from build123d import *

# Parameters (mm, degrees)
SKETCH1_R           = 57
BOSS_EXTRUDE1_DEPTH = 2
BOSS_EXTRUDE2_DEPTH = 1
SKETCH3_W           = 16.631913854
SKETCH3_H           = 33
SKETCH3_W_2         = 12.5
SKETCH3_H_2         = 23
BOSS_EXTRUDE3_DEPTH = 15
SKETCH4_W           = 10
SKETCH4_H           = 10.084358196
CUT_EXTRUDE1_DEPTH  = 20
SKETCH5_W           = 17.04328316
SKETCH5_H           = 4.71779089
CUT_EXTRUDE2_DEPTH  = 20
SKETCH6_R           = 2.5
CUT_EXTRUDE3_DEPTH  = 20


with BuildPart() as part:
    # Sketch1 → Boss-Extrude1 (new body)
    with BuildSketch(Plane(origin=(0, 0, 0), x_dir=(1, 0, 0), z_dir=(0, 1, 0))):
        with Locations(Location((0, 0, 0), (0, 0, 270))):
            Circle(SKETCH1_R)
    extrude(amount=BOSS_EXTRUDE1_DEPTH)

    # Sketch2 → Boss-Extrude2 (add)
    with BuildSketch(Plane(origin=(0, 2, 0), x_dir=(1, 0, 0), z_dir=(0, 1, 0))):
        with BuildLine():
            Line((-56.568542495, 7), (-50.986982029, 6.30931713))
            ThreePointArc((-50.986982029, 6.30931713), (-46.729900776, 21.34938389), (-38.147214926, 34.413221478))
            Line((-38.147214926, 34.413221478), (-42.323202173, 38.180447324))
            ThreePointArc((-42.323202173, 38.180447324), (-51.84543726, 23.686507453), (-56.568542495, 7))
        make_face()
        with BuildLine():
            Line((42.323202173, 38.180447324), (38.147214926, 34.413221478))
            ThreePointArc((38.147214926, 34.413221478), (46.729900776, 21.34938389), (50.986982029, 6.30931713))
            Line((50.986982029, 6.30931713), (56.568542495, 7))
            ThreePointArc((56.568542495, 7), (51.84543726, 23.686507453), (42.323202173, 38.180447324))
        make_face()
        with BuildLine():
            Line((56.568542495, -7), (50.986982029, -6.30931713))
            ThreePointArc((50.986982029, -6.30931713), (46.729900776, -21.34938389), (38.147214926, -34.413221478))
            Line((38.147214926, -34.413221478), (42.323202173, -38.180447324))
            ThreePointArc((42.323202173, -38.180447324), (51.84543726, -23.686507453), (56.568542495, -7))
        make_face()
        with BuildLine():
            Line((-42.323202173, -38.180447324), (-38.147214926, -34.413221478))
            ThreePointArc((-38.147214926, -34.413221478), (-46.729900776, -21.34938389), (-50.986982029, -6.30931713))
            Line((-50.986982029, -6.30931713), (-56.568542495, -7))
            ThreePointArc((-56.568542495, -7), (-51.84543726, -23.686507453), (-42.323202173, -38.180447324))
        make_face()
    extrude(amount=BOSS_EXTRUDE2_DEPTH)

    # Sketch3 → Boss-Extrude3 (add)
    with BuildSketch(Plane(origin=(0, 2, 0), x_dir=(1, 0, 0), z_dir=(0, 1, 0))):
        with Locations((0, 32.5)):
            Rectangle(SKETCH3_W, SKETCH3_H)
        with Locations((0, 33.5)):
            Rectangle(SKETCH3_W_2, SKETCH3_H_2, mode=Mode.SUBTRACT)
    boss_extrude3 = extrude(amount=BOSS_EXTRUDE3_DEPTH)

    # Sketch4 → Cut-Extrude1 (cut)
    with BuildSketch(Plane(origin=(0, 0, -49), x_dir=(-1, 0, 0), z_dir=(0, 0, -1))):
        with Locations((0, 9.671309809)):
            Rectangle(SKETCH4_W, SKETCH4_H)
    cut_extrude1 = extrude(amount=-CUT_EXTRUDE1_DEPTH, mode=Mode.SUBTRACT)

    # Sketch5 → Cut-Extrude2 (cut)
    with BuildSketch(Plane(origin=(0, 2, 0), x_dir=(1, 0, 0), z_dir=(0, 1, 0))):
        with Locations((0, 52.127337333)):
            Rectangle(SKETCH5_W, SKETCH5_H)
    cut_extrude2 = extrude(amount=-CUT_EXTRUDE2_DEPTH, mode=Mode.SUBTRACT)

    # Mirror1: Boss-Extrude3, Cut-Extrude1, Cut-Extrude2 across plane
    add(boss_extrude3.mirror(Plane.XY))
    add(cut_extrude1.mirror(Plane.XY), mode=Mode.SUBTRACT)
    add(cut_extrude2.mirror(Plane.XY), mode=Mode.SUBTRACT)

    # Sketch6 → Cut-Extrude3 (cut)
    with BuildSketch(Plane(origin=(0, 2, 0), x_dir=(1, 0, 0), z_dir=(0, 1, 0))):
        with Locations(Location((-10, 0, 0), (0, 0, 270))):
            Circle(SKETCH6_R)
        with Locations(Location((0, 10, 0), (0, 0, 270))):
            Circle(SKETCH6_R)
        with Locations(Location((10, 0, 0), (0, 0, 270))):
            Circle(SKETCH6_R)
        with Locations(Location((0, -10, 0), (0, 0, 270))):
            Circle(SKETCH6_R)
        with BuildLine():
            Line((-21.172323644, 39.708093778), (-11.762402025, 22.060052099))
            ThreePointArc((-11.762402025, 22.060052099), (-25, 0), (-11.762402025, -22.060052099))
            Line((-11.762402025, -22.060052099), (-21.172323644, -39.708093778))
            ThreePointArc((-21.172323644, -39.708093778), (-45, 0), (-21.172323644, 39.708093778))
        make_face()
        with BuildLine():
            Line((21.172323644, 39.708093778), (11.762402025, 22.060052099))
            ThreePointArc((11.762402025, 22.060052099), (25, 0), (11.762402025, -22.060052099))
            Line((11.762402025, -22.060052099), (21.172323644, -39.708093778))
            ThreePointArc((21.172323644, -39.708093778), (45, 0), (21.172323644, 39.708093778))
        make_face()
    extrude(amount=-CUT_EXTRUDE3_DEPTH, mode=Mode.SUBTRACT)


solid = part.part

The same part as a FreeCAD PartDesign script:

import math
import FreeCAD as App
import Part
import Sketcher
from FreeCAD import Vector

doc = App.newDocument("Part")
body = doc.addObject("PartDesign::Body", "Body")

sketch1 = body.newObject("Sketcher::SketchObject", "Sketch")
sketch1.AttachmentSupport = (doc.getObject("XZ_Plane"), [""])
sketch1.MapMode = "FlatFace"
sketch1.addGeometry(Part.Circle(Vector(0, 0, 0), Vector(0, 0, 1), 57), False)
sketch1.addConstraint([
    Sketcher.Constraint("Coincident", 0, 3, -1, 1),
    Sketcher.Constraint("Diameter", 0, 114.0),
])
pad1 = body.newObject("PartDesign::Pad", "Pad")
pad1.Profile = sketch1
pad1.Length = 2
pad1.Reversed = True

sketch2 = body.newObject("Sketcher::SketchObject", "Sketch001")
sketch2.AttachmentSupport = (doc.getObject("XZ_Plane"), [""])
sketch2.MapMode = "FlatFace"
sketch2.AttachmentOffset = App.Placement(Vector(0, 0, -2), App.Rotation())
sketch2.addGeometry([
    Part.LineSegment(Vector(-57, -7, 0), Vector(-51, -6, 0)),
    Part.ArcOfCircle(Part.Circle(Vector(0, 0, 0), Vector(0, 0, 1), 51), math.radians(-173), math.radians(-138)),
    Part.LineSegment(Vector(-38, -34, 0), Vector(-42, -38, 0)),
    Part.ArcOfCircle(Part.Circle(Vector(0, 0, 0), Vector(0, 0, 1), 57), math.radians(-173), math.radians(-138)),
    Part.LineSegment(Vector(42, -38, 0), Vector(38, -34, 0)),
    Part.ArcOfCircle(Part.Circle(Vector(0, 0, 0), Vector(0, 0, 1), 51), math.radians(-42), math.radians(-7)),
    Part.LineSegment(Vector(51, -6, 0), Vector(57, -7, 0)),
    Part.ArcOfCircle(Part.Circle(Vector(0, 0, 0), Vector(0, 0, 1), 57), math.radians(-42), math.radians(-7)),
    Part.LineSegment(Vector(57, 7, 0), Vector(51, 6, 0)),
    Part.ArcOfCircle(Part.Circle(Vector(0, 0, 0), Vector(0, 0, 1), 51), math.radians(7), math.radians(42)),
    Part.LineSegment(Vector(38, 34, 0), Vector(42, 38, 0)),
    Part.ArcOfCircle(Part.Circle(Vector(0, 0, 0), Vector(0, 0, 1), 57), math.radians(7), math.radians(42)),
    Part.LineSegment(Vector(-42, 38, 0), Vector(-38, 34, 0)),
    Part.ArcOfCircle(Part.Circle(Vector(0, 0, 0), Vector(0, 0, 1), 51), math.radians(138), math.radians(173)),
    Part.LineSegment(Vector(-51, 6, 0), Vector(-57, 7, 0)),
    Part.ArcOfCircle(Part.Circle(Vector(0, 0, 0), Vector(0, 0, 1), 57), math.radians(138), math.radians(173)),
], False)
sketch2.addConstraint([
    Sketcher.Constraint("Coincident", 0, 2, 1, 1),
    Sketcher.Constraint("Coincident", 1, 2, 2, 1),
    Sketcher.Constraint("Coincident", 2, 2, 3, 2),
    Sketcher.Constraint("Coincident", 3, 1, 0, 1),
    Sketcher.Constraint("Coincident", 4, 2, 5, 1),
    Sketcher.Constraint("Coincident", 5, 2, 6, 1),
    Sketcher.Constraint("Coincident", 6, 2, 7, 2),
    Sketcher.Constraint("Coincident", 7, 1, 4, 1),
    Sketcher.Constraint("Coincident", 8, 2, 9, 1),
    Sketcher.Constraint("Coincident", 9, 2, 10, 1),
    Sketcher.Constraint("Coincident", 10, 2, 11, 2),
    Sketcher.Constraint("Coincident", 11, 1, 8, 1),
    Sketcher.Constraint("Coincident", 12, 2, 13, 1),
    Sketcher.Constraint("Coincident", 13, 2, 14, 1),
    Sketcher.Constraint("Coincident", 14, 2, 15, 2),
    Sketcher.Constraint("Coincident", 15, 1, 12, 1),
    Sketcher.Constraint("Coincident", 1, 3, -1, 1),
    Sketcher.Constraint("Coincident", 3, 3, -1, 1),
    Sketcher.Constraint("Coincident", 5, 3, -1, 1),
    Sketcher.Constraint("Coincident", 7, 3, -1, 1),
    Sketcher.Constraint("Coincident", 9, 3, -1, 1),
    Sketcher.Constraint("Coincident", 11, 3, -1, 1),
    Sketcher.Constraint("Coincident", 13, 3, -1, 1),
    Sketcher.Constraint("Coincident", 15, 3, -1, 1),
    Sketcher.Constraint("Equal", 1, 5),
    Sketcher.Constraint("Equal", 3, 7),
    Sketcher.Constraint("Equal", 5, 9),
    Sketcher.Constraint("Equal", 7, 11),
    Sketcher.Constraint("Equal", 9, 13),
    Sketcher.Constraint("Equal", 11, 15),
    Sketcher.Constraint("Parallel", 0, 8),
    Sketcher.Constraint("Parallel", 2, 10),
    Sketcher.Constraint("Parallel", 4, 12),
    Sketcher.Constraint("Parallel", 6, 14),
    Sketcher.Constraint("Horizontal", 1, 2, 4, 2),
    Sketcher.Constraint("Horizontal", 0, 2, 5, 2),
    Sketcher.Constraint("Horizontal", 3, 1, 6, 2),
    Sketcher.Constraint("Horizontal", 2, 2, 7, 1),
    Sketcher.Constraint("Horizontal", 9, 2, 12, 2),
    Sketcher.Constraint("Horizontal", 8, 2, 13, 2),
    Sketcher.Constraint("Vertical", 5, 2, 8, 2),
    Sketcher.Constraint("Vertical", 4, 2, 9, 2),
    Sketcher.Constraint("Radius", 3, 57.0),
    Sketcher.Constraint("DistanceY", 3, 1, -1, 1, 7.0),
    Sketcher.Constraint("Radius", 1, 51.375868),
    Sketcher.Constraint("DistanceY", 1, 2, -1, 1, 34.413221),
    Sketcher.Constraint("DistanceX", 0, 2, 2, 2, 8.66378),
    Sketcher.Constraint("DistanceY", 2, 2, 0, 2, 31.87113),
])
pad2 = body.newObject("PartDesign::Pad", "Pad001")
pad2.Profile = sketch2
pad2.Length = 1
pad2.Reversed = True

sketch3 = body.newObject("Sketcher::SketchObject", "Sketch002")
sketch3.AttachmentSupport = (doc.getObject("XZ_Plane"), [""])
sketch3.MapMode = "FlatFace"
sketch3.AttachmentOffset = App.Placement(Vector(0, 0, -2), App.Rotation())
sketch3.addGeometry([
    Part.LineSegment(Vector(-8, -49, 0), Vector(-8, -16, 0)),
    Part.LineSegment(Vector(-8, -16, 0), Vector(8, -16, 0)),
    Part.LineSegment(Vector(8, -16, 0), Vector(8, -49, 0)),
    Part.LineSegment(Vector(8, -49, 0), Vector(-8, -49, 0)),
    Part.LineSegment(Vector(6, -22, 0), Vector(-6, -22, 0)),
    Part.LineSegment(Vector(-6, -22, 0), Vector(-6, -45, 0)),
    Part.LineSegment(Vector(-6, -45, 0), Vector(6, -45, 0)),
    Part.LineSegment(Vector(6, -45, 0), Vector(6, -22, 0)),
], False)
sketch3.addConstraint([
    Sketcher.Constraint("Coincident", 0, 2, 1, 1),
    Sketcher.Constraint("Coincident", 1, 2, 2, 1),
    Sketcher.Constraint("Coincident", 2, 2, 3, 1),
    Sketcher.Constraint("Coincident", 3, 2, 0, 1),
    Sketcher.Constraint("Coincident", 4, 2, 5, 1),
    Sketcher.Constraint("Coincident", 5, 2, 6, 1),
    Sketcher.Constraint("Coincident", 6, 2, 7, 1),
    Sketcher.Constraint("Coincident", 7, 2, 4, 1),
    Sketcher.Constraint("Vertical", 0),
    Sketcher.Constraint("Horizontal", 1),
    Sketcher.Constraint("Vertical", 2),
    Sketcher.Constraint("Horizontal", 3),
    Sketcher.Constraint("Horizontal", 4),
    Sketcher.Constraint("Vertical", 5),
    Sketcher.Constraint("Horizontal", 6),
    Sketcher.Constraint("Vertical", 7),
    Sketcher.Constraint("DistanceY", 0, 1, 0, 2, 33.0),
    Sketcher.Constraint("DistanceY", 5, 2, 5, 1, 23.0),
    Sketcher.Constraint("DistanceX", 4, 2, 4, 1, 12.5),
    Sketcher.Constraint("DistanceY", 0, 2, -1, 1, 16.0),
    Sketcher.Constraint("DistanceY", 4, 2, -1, 1, 22.0),
    Sketcher.Constraint("DistanceX", 4, 2, -1, 1, 6.25),
    Sketcher.Constraint("DistanceX", 1, 1, 1, 2, 16.631914),
    Sketcher.Constraint("DistanceX", 0, 2, -1, 1, 8.315957),
])
pad3 = body.newObject("PartDesign::Pad", "Pad002")
pad3.Profile = sketch3
pad3.Length = 15
pad3.Reversed = True

sketch4 = body.newObject("Sketcher::SketchObject", "Sketch003")
sketch4.AttachmentSupport = (doc.getObject("XY_Plane"), [""])
sketch4.MapMode = "FlatFace"
sketch4.AttachmentOffset = App.Placement(Vector(0, 0, -49), App.Rotation())
sketch4.addGeometry([
    Part.LineSegment(Vector(5, 15, 0), Vector(5, 5, 0)),
    Part.LineSegment(Vector(5, 5, 0), Vector(-5, 5, 0)),
    Part.LineSegment(Vector(-5, 5, 0), Vector(-5, 15, 0)),
    Part.LineSegment(Vector(-5, 15, 0), Vector(5, 15, 0)),
], False)
sketch4.addConstraint([
    Sketcher.Constraint("Coincident", 0, 2, 1, 1),
    Sketcher.Constraint("Coincident", 1, 2, 2, 1),
    Sketcher.Constraint("Coincident", 2, 2, 3, 1),
    Sketcher.Constraint("Coincident", 3, 2, 0, 1),
    Sketcher.Constraint("Vertical", 0),
    Sketcher.Constraint("Horizontal", 1),
    Sketcher.Constraint("Vertical", 2),
    Sketcher.Constraint("Horizontal", 3),
    Sketcher.Constraint("DistanceX", 1, 2, 1, 1, 10.0),
    Sketcher.Constraint("DistanceX", -1, 1, 0, 2, 5.0),
    Sketcher.Constraint("DistanceY", 0, 2, 0, 1, 10.084358),
    Sketcher.Constraint("DistanceY", -1, 1, 0, 2, 4.629131),
])
pocket1 = body.newObject("PartDesign::Pocket", "Pocket")
pocket1.Profile = sketch4
pocket1.Length = 20
pocket1.Reversed = True

sketch5 = body.newObject("Sketcher::SketchObject", "Sketch004")
sketch5.AttachmentSupport = (doc.getObject("XZ_Plane"), [""])
sketch5.MapMode = "FlatFace"
sketch5.AttachmentOffset = App.Placement(Vector(0, 0, -2), App.Rotation())
sketch5.addGeometry([
    Part.LineSegment(Vector(-8.5, -54.5, 0), Vector(-8.5, -49.8, 0)),
    Part.LineSegment(Vector(-8.5, -49.8, 0), Vector(8.5, -49.8, 0)),
    Part.LineSegment(Vector(8.5, -49.8, 0), Vector(8.5, -54.5, 0)),
    Part.LineSegment(Vector(8.5, -54.5, 0), Vector(-8.5, -54.5, 0)),
], False)
sketch5.addConstraint([
    Sketcher.Constraint("Coincident", 0, 2, 1, 1),
    Sketcher.Constraint("Coincident", 1, 2, 2, 1),
    Sketcher.Constraint("Coincident", 2, 2, 3, 1),
    Sketcher.Constraint("Coincident", 3, 2, 0, 1),
    Sketcher.Constraint("Vertical", 0),
    Sketcher.Constraint("Horizontal", 1),
    Sketcher.Constraint("Vertical", 2),
    Sketcher.Constraint("Horizontal", 3),
    Sketcher.Constraint("DistanceY", 0, 1, 0, 2, 4.717791),
    Sketcher.Constraint("DistanceX", 1, 1, 1, 2, 17.043283),
    Sketcher.Constraint("DistanceX", 0, 2, -1, 1, 8.521642),
    Sketcher.Constraint("DistanceY", 0, 2, -1, 1, 49.768442),
])
pocket2 = body.newObject("PartDesign::Pocket", "Pocket001")
pocket2.Profile = sketch5
pocket2.Length = 20
pocket2.Reversed = True
doc.recompute()

mirrored = body.newObject("PartDesign::Mirrored", "Mirrored")
mirrored.Originals = [pad3, pocket1, pocket2]
mirrored.MirrorPlane = (doc.getObject("XY_Plane"), [""])
body.Tip = mirrored

sketch6 = body.newObject("Sketcher::SketchObject", "Sketch005")
sketch6.AttachmentSupport = (doc.getObject("XZ_Plane"), [""])
sketch6.MapMode = "FlatFace"
sketch6.AttachmentOffset = App.Placement(Vector(0, 0, -2), App.Rotation())
sketch6.addGeometry([
    Part.Circle(Vector(-10, 0, 0), Vector(0, 0, 1), 2.5),
    Part.Circle(Vector(0, -10, 0), Vector(0, 0, 1), 2.5),
    Part.Circle(Vector(10, 0, 0), Vector(0, 0, 1), 2.5),
    Part.Circle(Vector(0, 10, 0), Vector(0, 0, 1), 2.5),
    Part.LineSegment(Vector(-11.8, -22.1, 0), Vector(-21.2, -39.7, 0)),
    Part.ArcOfCircle(Part.Circle(Vector(0, 0, 0), Vector(0, 0, 1), 45), math.radians(118), math.radians(242)),
    Part.LineSegment(Vector(-21.2, 39.7, 0), Vector(-11.8, 22.1, 0)),
    Part.ArcOfCircle(Part.Circle(Vector(0, 0, 0), Vector(0, 0, 1), 25), math.radians(118), math.radians(242)),
    Part.LineSegment(Vector(21.2, -39.7, 0), Vector(11.8, -22.1, 0)),
    Part.ArcOfCircle(Part.Circle(Vector(0, 0, 0), Vector(0, 0, 1), 25), math.radians(-62), math.radians(62)),
    Part.LineSegment(Vector(11.8, 22.1, 0), Vector(21.2, 39.7, 0)),
    Part.ArcOfCircle(Part.Circle(Vector(0, 0, 0), Vector(0, 0, 1), 45), math.radians(-62), math.radians(62)),
], False)
sketch6.addConstraint([
    Sketcher.Constraint("Coincident", 4, 2, 5, 2),
    Sketcher.Constraint("Coincident", 5, 1, 6, 1),
    Sketcher.Constraint("Coincident", 6, 2, 7, 1),
    Sketcher.Constraint("Coincident", 7, 2, 4, 1),
    Sketcher.Constraint("Coincident", 8, 2, 9, 1),
    Sketcher.Constraint("Coincident", 9, 2, 10, 1),
    Sketcher.Constraint("Coincident", 10, 2, 11, 2),
    Sketcher.Constraint("Coincident", 11, 1, 8, 1),
    Sketcher.Constraint("Coincident", 5, 3, -1, 1),
    Sketcher.Constraint("Coincident", 7, 3, -1, 1),
    Sketcher.Constraint("Coincident", 9, 3, -1, 1),
    Sketcher.Constraint("Coincident", 11, 3, -1, 1),
    Sketcher.Constraint("Equal", 0, 1),
    Sketcher.Constraint("Equal", 1, 2),
    Sketcher.Constraint("Equal", 2, 3),
    Sketcher.Constraint("Equal", 7, 9),
    Sketcher.Constraint("Equal", 5, 11),
    Sketcher.Constraint("Symmetric", 0, 3, 2, 3, -1, 1),
    Sketcher.Constraint("Symmetric", 1, 3, 3, 3, -1, 1),
    Sketcher.Constraint("PointOnObject", 0, 3, -1),
    Sketcher.Constraint("PointOnObject", 1, 3, -2),
    Sketcher.Constraint("Parallel", 6, 8),
    Sketcher.Constraint("Parallel", 4, 10),
    Sketcher.Constraint("Horizontal", 7, 2, 8, 2),
    Sketcher.Constraint("Horizontal", 6, 2, 9, 2),
    Sketcher.Constraint("Horizontal", 5, 1, 10, 2),
    Sketcher.Constraint("Vertical", 4, 2, 5, 1),
    Sketcher.Constraint("Diameter", 0, 5.0),
    Sketcher.Constraint("Radius", 5, 45.0),
    Sketcher.Constraint("Radius", 7, 25.0),
    Sketcher.Constraint("DistanceX", 0, 3, -1, 1, 10.0),
    Sketcher.Constraint("DistanceY", 1, 3, -1, 1, 10.0),
    Sketcher.Constraint("DistanceX", 5, 1, 6, 2, 9.409922),
    Sketcher.Constraint("DistanceX", 4, 2, -1, 1, 21.172324),
])
pocket3 = body.newObject("PartDesign::Pocket", "Pocket002")
pocket3.Profile = sketch6
pocket3.Length = 20
pocket3.Reversed = True

doc.recompute()
